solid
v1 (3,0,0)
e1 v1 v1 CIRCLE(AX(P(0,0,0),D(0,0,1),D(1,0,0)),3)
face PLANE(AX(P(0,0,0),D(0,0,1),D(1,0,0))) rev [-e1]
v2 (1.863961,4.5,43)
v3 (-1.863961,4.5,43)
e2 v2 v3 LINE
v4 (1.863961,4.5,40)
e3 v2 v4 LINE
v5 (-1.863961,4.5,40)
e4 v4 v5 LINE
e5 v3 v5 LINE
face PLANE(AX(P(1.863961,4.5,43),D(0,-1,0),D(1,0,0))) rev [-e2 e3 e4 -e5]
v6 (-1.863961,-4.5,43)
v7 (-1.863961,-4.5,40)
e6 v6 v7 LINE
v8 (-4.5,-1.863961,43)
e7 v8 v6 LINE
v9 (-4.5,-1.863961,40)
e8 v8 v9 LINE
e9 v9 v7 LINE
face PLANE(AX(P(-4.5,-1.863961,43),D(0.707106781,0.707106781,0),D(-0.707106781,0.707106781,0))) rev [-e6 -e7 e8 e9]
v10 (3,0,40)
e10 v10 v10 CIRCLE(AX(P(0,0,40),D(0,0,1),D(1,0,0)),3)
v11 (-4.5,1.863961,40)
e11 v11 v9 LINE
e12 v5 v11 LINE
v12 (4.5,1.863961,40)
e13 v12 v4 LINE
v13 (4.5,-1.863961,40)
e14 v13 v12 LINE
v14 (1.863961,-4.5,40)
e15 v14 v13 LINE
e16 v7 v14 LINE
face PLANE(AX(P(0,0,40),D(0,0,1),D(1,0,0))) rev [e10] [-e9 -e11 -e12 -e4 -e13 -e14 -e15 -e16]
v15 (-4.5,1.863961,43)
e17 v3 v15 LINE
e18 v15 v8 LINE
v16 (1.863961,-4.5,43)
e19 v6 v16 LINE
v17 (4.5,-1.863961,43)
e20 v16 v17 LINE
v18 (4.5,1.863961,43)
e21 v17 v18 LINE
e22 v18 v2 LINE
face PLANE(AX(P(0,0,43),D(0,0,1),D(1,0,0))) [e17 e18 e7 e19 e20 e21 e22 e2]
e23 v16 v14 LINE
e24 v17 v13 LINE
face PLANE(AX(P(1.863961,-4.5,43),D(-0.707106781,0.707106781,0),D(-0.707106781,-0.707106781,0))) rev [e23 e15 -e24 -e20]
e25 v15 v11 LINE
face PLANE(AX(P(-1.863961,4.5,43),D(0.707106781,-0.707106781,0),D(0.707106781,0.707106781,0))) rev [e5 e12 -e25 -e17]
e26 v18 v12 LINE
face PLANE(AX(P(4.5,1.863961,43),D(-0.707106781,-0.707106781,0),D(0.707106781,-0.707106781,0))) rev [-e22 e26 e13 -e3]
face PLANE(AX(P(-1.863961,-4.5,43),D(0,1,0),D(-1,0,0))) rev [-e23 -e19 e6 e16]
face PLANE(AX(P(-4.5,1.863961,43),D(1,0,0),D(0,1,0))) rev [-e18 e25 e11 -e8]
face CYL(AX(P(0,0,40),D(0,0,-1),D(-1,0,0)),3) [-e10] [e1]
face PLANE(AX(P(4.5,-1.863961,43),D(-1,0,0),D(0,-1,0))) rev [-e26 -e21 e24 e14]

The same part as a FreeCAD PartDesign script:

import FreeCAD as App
import Part
import Sketcher
from FreeCAD import Vector
Q = App.Units.Quantity

doc = App.newDocument("Part")
body = doc.addObject("PartDesign::Body", "Body")

sketch1 = body.newObject("Sketcher::SketchObject", "Sketch")
sketch1.AttachmentSupport = (doc.getObject("XY_Plane"), [""])
sketch1.MapMode = "FlatFace"
sketch1.addGeometry(Part.Circle(Vector(0, 0, 0), Vector(0, 0, 1), 3), False)
sketch1.addConstraint(Sketcher.Constraint("Coincident", 0, 3, -1, 1))
sketch1.addConstraint(Sketcher.Constraint("Diameter", 0, Q("6 mm")))
pad1 = body.newObject("PartDesign::Pad", "Pad")
pad1.Profile = sketch1
pad1.Length = 40

sketch2 = body.newObject("Sketcher::SketchObject", "Sketch001")
sketch2.AttachmentSupport = (doc.getObject("XY_Plane"), [""])
sketch2.MapMode = "FlatFace"
sketch2.AttachmentOffset = App.Placement(Vector(0, 0, 40), App.Rotation())
sketch2.addGeometry(Part.LineSegment(Vector(-1.9, -4.5, 0), Vector(1.9, -4.5, 0)), False)
sketch2.addGeometry(Part.LineSegment(Vector(1.9, -4.5, 0), Vector(4.5, -1.9, 0)), False)
sketch2.addGeometry(Part.LineSegment(Vector(4.5, -1.9, 0), Vector(4.5, 1.9, 0)), False)
sketch2.addGeometry(Part.LineSegment(Vector(4.5, 1.9, 0), Vector(1.9, 4.5, 0)), False)
sketch2.addGeometry(Part.LineSegment(Vector(1.9, 4.5, 0), Vector(-1.9, 4.5, 0)), False)
sketch2.addGeometry(Part.LineSegment(Vector(-1.9, 4.5, 0), Vector(-4.5, 1.9, 0)), False)
sketch2.addGeometry(Part.LineSegment(Vector(-4.5, 1.9, 0), Vector(-4.5, -1.9, 0)), False)
sketch2.addGeometry(Part.LineSegment(Vector(-4.5, -1.9, 0), Vector(-1.9, -4.5, 0)), False)
sketch2.addConstraint(Sketcher.Constraint("Coincident", 0, 2, 1, 1))
sketch2.addConstraint(Sketcher.Constraint("Coincident", 1, 2, 2, 1))
sketch2.addConstraint(Sketcher.Constraint("Coincident", 2, 2, 3, 1))
sketch2.addConstraint(Sketcher.Constraint("Coincident", 3, 2, 4, 1))
sketch2.addConstraint(Sketcher.Constraint("Coincident", 4, 2, 5, 1))
sketch2.addConstraint(Sketcher.Constraint("Coincident", 5, 2, 6, 1))
sketch2.addConstraint(Sketcher.Constraint("Coincident", 6, 2, 7, 1))
sketch2.addConstraint(Sketcher.Constraint("Coincident", 7, 2, 0, 1))
sketch2.addConstraint(Sketcher.Constraint("Horizontal", 0))
sketch2.addConstraint(Sketcher.Constraint("Vertical", 2))
sketch2.addConstraint(Sketcher.Constraint("Horizontal", 4))
sketch2.addConstraint(Sketcher.Constraint("Vertical", 6))
sketch2.addConstraint(Sketcher.Constraint("Symmetric", 0, 2, 4, 2, -1, 1))
sketch2.addConstraint(Sketcher.Constraint("Symmetric", 1, 2, 5, 2, -1, 1))
sketch2.addConstraint(Sketcher.Constraint("Perpendicular", 1, 3))
sketch2.addConstraint(Sketcher.Constraint("Perpendicular", 5, 7))
sketch2.addConstraint(Sketcher.Constraint("Horizontal", 2, 2, 5, 2))
sketch2.addConstraint(Sketcher.Constraint("Horizontal", 1, 2, 6, 2))
sketch2.addConstraint(Sketcher.Constraint("Vertical", 0, 2, 3, 2))
sketch2.addConstraint(Sketcher.Constraint("Equal", 4, 2))
sketch2.addConstraint(Sketcher.Constraint("DistanceY", 0, 2, 3, 2, Q("9 mm")))
sketch2.addConstraint(Sketcher.Constraint("DistanceX", 0, 1, 0, 2, Q("3.727922 mm")))
pad2 = body.newObject("PartDesign::Pad", "Pad001")
pad2.Profile = sketch2
pad2.Length = 3

doc.recompute()
